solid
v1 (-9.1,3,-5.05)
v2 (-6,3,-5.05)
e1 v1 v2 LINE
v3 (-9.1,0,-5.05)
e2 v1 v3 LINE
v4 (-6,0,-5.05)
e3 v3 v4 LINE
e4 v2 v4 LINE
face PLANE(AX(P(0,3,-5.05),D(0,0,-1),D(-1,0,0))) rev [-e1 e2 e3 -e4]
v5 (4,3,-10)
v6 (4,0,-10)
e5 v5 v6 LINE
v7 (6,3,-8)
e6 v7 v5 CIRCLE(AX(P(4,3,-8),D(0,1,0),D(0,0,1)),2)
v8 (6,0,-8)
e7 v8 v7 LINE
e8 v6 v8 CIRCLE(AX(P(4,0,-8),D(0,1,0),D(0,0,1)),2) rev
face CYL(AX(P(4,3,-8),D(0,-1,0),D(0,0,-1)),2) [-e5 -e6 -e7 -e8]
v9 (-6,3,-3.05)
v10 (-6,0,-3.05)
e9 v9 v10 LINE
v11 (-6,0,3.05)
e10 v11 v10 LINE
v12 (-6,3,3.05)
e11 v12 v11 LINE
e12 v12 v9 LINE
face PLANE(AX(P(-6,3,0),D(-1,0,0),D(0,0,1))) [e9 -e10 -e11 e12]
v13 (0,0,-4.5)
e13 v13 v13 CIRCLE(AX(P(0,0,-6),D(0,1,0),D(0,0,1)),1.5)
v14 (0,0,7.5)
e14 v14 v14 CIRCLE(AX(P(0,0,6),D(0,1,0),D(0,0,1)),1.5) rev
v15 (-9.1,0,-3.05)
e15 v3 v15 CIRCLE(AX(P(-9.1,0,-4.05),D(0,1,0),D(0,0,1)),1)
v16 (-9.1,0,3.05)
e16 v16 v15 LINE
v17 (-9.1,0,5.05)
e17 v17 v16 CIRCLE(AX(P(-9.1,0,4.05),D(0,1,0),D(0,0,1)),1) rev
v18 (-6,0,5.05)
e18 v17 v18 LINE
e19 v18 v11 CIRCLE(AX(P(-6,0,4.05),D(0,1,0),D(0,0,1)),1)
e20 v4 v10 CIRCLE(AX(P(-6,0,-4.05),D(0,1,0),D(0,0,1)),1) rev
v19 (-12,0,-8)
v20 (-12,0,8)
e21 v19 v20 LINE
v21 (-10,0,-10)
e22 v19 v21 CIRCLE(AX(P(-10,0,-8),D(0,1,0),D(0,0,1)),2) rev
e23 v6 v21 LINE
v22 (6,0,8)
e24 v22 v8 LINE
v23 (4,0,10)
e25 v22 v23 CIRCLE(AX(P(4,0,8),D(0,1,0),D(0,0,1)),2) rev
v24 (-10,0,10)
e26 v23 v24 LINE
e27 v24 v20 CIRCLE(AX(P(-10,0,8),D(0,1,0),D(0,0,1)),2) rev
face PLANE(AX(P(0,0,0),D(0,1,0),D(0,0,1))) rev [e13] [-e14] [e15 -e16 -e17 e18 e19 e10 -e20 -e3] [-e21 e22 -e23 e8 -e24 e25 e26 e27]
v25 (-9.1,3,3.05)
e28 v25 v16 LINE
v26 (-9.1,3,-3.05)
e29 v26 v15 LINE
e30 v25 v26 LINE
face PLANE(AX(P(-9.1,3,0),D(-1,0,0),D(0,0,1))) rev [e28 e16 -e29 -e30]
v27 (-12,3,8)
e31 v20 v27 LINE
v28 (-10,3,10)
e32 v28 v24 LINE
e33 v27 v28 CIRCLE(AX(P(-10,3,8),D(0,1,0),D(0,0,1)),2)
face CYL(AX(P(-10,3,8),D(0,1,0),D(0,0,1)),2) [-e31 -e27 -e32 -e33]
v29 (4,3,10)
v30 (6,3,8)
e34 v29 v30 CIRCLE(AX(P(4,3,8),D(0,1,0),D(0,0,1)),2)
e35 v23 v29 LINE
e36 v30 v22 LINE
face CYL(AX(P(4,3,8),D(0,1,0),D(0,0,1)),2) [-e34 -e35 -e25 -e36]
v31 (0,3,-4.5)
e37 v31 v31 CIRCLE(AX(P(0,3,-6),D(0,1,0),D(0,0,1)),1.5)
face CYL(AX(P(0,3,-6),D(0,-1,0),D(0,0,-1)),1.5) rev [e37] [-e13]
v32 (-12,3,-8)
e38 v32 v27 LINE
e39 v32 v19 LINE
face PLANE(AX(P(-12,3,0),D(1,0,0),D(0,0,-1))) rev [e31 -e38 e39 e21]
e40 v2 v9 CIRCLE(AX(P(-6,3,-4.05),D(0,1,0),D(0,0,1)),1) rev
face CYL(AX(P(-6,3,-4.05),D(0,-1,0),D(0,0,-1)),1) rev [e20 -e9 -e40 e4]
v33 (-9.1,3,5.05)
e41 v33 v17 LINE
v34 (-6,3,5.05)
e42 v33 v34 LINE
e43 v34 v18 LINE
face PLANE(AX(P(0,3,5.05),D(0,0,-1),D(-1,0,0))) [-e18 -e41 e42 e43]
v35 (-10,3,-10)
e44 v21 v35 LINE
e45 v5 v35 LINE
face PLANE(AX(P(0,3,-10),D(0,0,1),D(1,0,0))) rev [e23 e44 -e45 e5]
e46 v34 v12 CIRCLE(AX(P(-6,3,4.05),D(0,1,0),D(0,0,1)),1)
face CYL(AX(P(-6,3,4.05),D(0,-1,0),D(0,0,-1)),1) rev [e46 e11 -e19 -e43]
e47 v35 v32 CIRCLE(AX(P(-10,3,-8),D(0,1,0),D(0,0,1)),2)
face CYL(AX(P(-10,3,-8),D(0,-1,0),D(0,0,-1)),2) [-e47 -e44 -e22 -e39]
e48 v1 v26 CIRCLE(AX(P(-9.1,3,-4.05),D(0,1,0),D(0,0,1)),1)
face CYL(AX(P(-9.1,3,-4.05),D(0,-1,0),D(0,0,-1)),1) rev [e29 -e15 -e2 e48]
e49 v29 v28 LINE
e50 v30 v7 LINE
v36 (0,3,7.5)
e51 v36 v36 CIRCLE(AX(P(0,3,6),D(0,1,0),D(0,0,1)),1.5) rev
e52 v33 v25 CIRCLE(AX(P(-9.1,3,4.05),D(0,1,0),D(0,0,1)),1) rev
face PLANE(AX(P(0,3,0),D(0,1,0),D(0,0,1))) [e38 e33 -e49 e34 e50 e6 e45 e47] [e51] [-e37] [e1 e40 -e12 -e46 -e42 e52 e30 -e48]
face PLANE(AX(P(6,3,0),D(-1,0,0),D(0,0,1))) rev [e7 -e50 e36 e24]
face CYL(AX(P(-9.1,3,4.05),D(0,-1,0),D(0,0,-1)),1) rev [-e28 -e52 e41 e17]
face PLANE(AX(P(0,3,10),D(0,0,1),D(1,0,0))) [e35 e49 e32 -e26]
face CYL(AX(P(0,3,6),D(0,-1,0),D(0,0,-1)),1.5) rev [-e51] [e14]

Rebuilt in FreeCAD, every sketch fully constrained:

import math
import FreeCAD as App
import Part
import Sketcher

V = App.Vector


def edges_at(feature, points):
    """Names of the edges that pass closest to the given points."""
    edges = feature.Shape.Edges
    near = lambda p: min(range(len(edges)), key=lambda i: edges[i].distToShape(Part.Vertex(*p))[0])
    return sorted({f"Edge{near(p) + 1}" for p in points})


def add_polygon(sketch, points):
    """Adds a closed chain of lines whose ends are joined by coincident constraints."""
    first, n = sketch.GeometryCount, len(points)
    for a, b in zip(points, points[1:] + points[:1]):
        sketch.addGeometry(Part.LineSegment(App.Vector(*a, 0), App.Vector(*b, 0)), False)
    for i in range(n):
        sketch.addConstraint(Sketcher.Constraint("Coincident", first + i, 2, first + (i + 1) % n, 1))

doc = App.newDocument("Part")
body = doc.addObject("PartDesign::Body", "Body")

# Sketch on XZ plane
sketch1 = body.newObject("Sketcher::SketchObject", "Sketch")
sketch1.AttachmentSupport = (doc.getObject("XZ_Plane"), [""])
sketch1.MapMode = "FlatFace"
add_polygon(sketch1, [(-12, 10), (6, 10), (6, -10), (-12, -10)])  # lines 0-3
sketch1.addGeometry(Part.Circle(V(0, 6, 0), V(0, 0, 1), 1.5), False)  # 4
sketch1.addGeometry(Part.ArcOfCircle(Part.Circle(V(-6, 4, 0), V(0, 0, 1), 1), math.radians(0), math.radians(90)), False)  # 5
sketch1.addGeometry(Part.LineSegment(V(-6, 5, 0), V(-9.1, 5, 0)), False)  # 6
sketch1.addGeometry(Part.ArcOfCircle(Part.Circle(V(-9.1, 4, 0), V(0, 0, 1), 1), math.radians(90), math.radians(270)), False)  # 7
sketch1.addGeometry(Part.LineSegment(V(-9.1, 3, 0), V(-9.1, -3, 0)), False)  # 8
sketch1.addGeometry(Part.ArcOfCircle(Part.Circle(V(-9.1, -4, 0), V(0, 0, 1), 1), math.radians(90), math.radians(270)), False)  # 9
sketch1.addGeometry(Part.LineSegment(V(-9.1, -5, 0), V(-6, -5, 0)), False)  # 10
sketch1.addGeometry(Part.ArcOfCircle(Part.Circle(V(-6, -4, 0), V(0, 0, 1), 1), math.radians(-90), math.radians(0)), False)  # 11
sketch1.addGeometry(Part.ArcOfCircle(Part.Circle(V(-6, -4.1, 0), V(0, 0, 1), 1), math.radians(0), math.radians(90)), False)  # 12
sketch1.addGeometry(Part.LineSegment(V(-6, -3, 0), V(-6, 3, 0)), False)  # 13
sketch1.addGeometry(Part.ArcOfCircle(Part.Circle(V(-6, 4.1, 0), V(0, 0, 1), 1), math.radians(-90), math.radians(0)), False)  # 14
sketch1.addGeometry(Part.Circle(V(0, -6, 0), V(0, 0, 1), 1.5), False)  # 15
sketch1.addConstraint([
    Sketcher.Constraint("Tangent", 5, 2, 6, 1),
    Sketcher.Constraint("Tangent", 6, 2, 7, 1),
    Sketcher.Constraint("Coincident", 7, 2, 8, 1),
    Sketcher.Constraint("Coincident", 8, 2, 9, 1),
    Sketcher.Constraint("Tangent", 9, 2, 10, 1),
    Sketcher.Constraint("Tangent", 10, 2, 11, 1),
    Sketcher.Constraint("Tangent", 11, 2, 12, 1),
    Sketcher.Constraint("Coincident", 12, 2, 13, 1),
    Sketcher.Constraint("Coincident", 13, 2, 14, 1),
    Sketcher.Constraint("Tangent", 14, 2, 5, 1),
    Sketcher.Constraint("Horizontal", 0),
    Sketcher.Constraint("Vertical", 1),
    Sketcher.Constraint("Horizontal", 2),
    Sketcher.Constraint("Vertical", 3),
    Sketcher.Constraint("Horizontal", 6),
    Sketcher.Constraint("Vertical", 8),
    Sketcher.Constraint("Horizontal", 10),
    Sketcher.Constraint("Vertical", 13),
    Sketcher.Constraint("Equal", 5, 7),
    Sketcher.Constraint("Equal", 7, 9),
    Sketcher.Constraint("Equal", 9, 11),
    Sketcher.Constraint("Equal", 11, 12),
    Sketcher.Constraint("Equal", 12, 14),
    Sketcher.Constraint("Equal", 4, 15),
    Sketcher.Constraint("Symmetric", 4, 3, 15, 3, -1, 1),
    Sketcher.Constraint("Symmetric", 7, 3, 9, 3, -1),
    Sketcher.Constraint("Symmetric", 11, 2, 14, 2, -1),
    Sketcher.Constraint("PointOnObject", 4, 3, -2),
    Sketcher.Constraint("Horizontal", 12, 3, 11, 2),
    Sketcher.Constraint("Vertical", 6, 2, 7, 2),
    Sketcher.Constraint("Vertical", 10, 2, 12, 2),
    Sketcher.Constraint("Diameter", 4, 3.0),
    Sketcher.Constraint("Radius", 5, 1.0),
    Sketcher.Constraint("DistanceX", 0, 1, 0, 2, 18.0),
    Sketcher.Constraint("DistanceY", 1, 2, 1, 1, 20.0),
    Sketcher.Constraint("DistanceX", 6, 2, 6, 1, 3.1),
    Sketcher.Constraint("DistanceY", 8, 2, 8, 1, 6.1),
    Sketcher.Constraint("DistanceY", -1, 1, 4, 3, 6.0),
    Sketcher.Constraint("DistanceX", 5, 3, -1, 1, 6.0),
    Sketcher.Constraint("DistanceX", -1, 1, 0, 2, 6.0),
    Sketcher.Constraint("DistanceY", -1, 1, 0, 2, 10.0),
])
pad1 = body.newObject("PartDesign::Pad", "Pad")
pad1.Profile = sketch1
pad1.Length = 3
pad1.Reversed = True
doc.recompute()

fillet = body.newObject("PartDesign::Fillet", "Fillet")
fillet.Base = (pad1, edges_at(pad1, [
    (6, 1.5, -10),
    (6, 1.5, 10),
    (-12, 1.5, 10),
    (-12, 1.5, -10),
]))
fillet.Radius = 2

doc.recompute()
